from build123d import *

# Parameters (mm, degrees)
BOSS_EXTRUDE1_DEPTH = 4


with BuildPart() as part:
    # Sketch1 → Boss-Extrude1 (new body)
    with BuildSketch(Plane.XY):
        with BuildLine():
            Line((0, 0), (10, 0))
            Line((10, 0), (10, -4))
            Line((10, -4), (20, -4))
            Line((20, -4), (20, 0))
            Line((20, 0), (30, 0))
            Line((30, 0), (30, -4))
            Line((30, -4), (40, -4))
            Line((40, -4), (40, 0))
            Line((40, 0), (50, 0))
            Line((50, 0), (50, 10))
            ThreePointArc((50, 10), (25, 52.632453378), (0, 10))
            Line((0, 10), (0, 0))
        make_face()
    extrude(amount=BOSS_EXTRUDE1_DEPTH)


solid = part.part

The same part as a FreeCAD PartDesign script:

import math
import FreeCAD as App
import Part
import Sketcher

V = App.Vector
Q = App.Units.Quantity

doc = App.newDocument("Part")
params = doc.addObject("Spreadsheet::Sheet", "Params")
for row, (alias, value) in enumerate([
    ("sketch1_width", "10 mm"),
    ("sketch1_height", "4 mm"),
    ("pad1_length", "4 mm"),
], start=1):
    params.set(f"A{row}", alias)
    params.set(f"B{row}", "=" + value)
    params.setAlias(f"B{row}", alias)

body = doc.addObject("PartDesign::Body", "Body")

sketch1 = body.newObject("Sketcher::SketchObject", "Sketch")
sketch1.AttachmentSupport = (doc.getObject("XY_Plane"), [""])
sketch1.MapMode = "FlatFace"
sketch1.addGeometry([
    Part.LineSegment(V(0, 0, 0), V(10, 0, 0)),
    Part.LineSegment(V(10, 0, 0), V(10, -4, 0)),
    Part.LineSegment(V(10, -4, 0), V(20, -4, 0)),
    Part.LineSegment(V(20, -4, 0), V(20, 0, 0)),
    Part.LineSegment(V(20, 0, 0), V(30, 0, 0)),
    Part.LineSegment(V(30, 0, 0), V(30, -4, 0)),
    Part.LineSegment(V(30, -4, 0), V(40, -4, 0)),
    Part.LineSegment(V(40, -4, 0), V(40, 0, 0)),
    Part.LineSegment(V(40, 0, 0), V(50, 0, 0)),
    Part.LineSegment(V(50, 0, 0), V(50, 10, 0)),
    Part.ArcOfCircle(Part.Circle(V(25, 24, 0), V(0, 0, 1), 28.6), math.radians(-29), math.radians(209)),
    Part.LineSegment(V(0, 10, 0), V(0, 0, 0)),
], False)
sketch1.addConstraint([
    Sketcher.Constraint("Coincident", 0, 2, 1, 1),
    Sketcher.Constraint("Coincident", 1, 2, 2, 1),
    Sketcher.Constraint("Coincident", 2, 2, 3, 1),
    Sketcher.Constraint("Coincident", 3, 2, 4, 1),
    Sketcher.Constraint("Coincident", 4, 2, 5, 1),
    Sketcher.Constraint("Coincident", 5, 2, 6, 1),
    Sketcher.Constraint("Coincident", 6, 2, 7, 1),
    Sketcher.Constraint("Coincident", 7, 2, 8, 1),
    Sketcher.Constraint("Coincident", 8, 2, 9, 1),
    Sketcher.Constraint("Coincident", 9, 2, 10, 1),
    Sketcher.Constraint("Coincident", 10, 2, 11, 1),
    Sketcher.Constraint("Coincident", 11, 2, 0, 1),
    Sketcher.Constraint("Horizontal", 0),
    Sketcher.Constraint("Vertical", 1),
    Sketcher.Constraint("Horizontal", 2),
    Sketcher.Constraint("Vertical", 3),
    Sketcher.Constraint("Horizontal", 4),
    Sketcher.Constraint("Vertical", 5),
    Sketcher.Constraint("Horizontal", 6),
    Sketcher.Constraint("Vertical", 7),
    Sketcher.Constraint("Horizontal", 8),
    Sketcher.Constraint("Vertical", 9),
    Sketcher.Constraint("Vertical", 11),
    Sketcher.Constraint("Coincident", 11, 2, -1, 1),
    Sketcher.Constraint("PointOnObject", 3, 2, -1),
    Sketcher.Constraint("PointOnObject", 7, 2, -1),
    Sketcher.Constraint("Horizontal", 2, 2, 5, 2),
    Sketcher.Constraint("Horizontal", 9, 2, 10, 2),
    Sketcher.Constraint("Equal", 0, 2),
    Sketcher.Constraint("Equal", 2, 4),
    Sketcher.Constraint("Equal", 4, 6),
    Sketcher.Constraint("Equal", 6, 8),
    Sketcher.Constraint("Equal", 8, 9),
    Sketcher.Constraint("DistanceX", 0, 1, 0, 2, Q("10 mm")),
    Sketcher.Constraint("DistanceY", 1, 2, 1, 1, Q("4 mm")),
    Sketcher.Constraint("Radius", 10, Q("28.646323 mm")),
])
sketch1.setExpression("Constraints[33]", "Params.sketch1_width")
sketch1.setExpression("Constraints[34]", "Params.sketch1_height")
pad1 = body.newObject("PartDesign::Pad", "Pad")
pad1.Profile = sketch1
pad1.setExpression("Length", "Params.pad1_length")

doc.recompute()
